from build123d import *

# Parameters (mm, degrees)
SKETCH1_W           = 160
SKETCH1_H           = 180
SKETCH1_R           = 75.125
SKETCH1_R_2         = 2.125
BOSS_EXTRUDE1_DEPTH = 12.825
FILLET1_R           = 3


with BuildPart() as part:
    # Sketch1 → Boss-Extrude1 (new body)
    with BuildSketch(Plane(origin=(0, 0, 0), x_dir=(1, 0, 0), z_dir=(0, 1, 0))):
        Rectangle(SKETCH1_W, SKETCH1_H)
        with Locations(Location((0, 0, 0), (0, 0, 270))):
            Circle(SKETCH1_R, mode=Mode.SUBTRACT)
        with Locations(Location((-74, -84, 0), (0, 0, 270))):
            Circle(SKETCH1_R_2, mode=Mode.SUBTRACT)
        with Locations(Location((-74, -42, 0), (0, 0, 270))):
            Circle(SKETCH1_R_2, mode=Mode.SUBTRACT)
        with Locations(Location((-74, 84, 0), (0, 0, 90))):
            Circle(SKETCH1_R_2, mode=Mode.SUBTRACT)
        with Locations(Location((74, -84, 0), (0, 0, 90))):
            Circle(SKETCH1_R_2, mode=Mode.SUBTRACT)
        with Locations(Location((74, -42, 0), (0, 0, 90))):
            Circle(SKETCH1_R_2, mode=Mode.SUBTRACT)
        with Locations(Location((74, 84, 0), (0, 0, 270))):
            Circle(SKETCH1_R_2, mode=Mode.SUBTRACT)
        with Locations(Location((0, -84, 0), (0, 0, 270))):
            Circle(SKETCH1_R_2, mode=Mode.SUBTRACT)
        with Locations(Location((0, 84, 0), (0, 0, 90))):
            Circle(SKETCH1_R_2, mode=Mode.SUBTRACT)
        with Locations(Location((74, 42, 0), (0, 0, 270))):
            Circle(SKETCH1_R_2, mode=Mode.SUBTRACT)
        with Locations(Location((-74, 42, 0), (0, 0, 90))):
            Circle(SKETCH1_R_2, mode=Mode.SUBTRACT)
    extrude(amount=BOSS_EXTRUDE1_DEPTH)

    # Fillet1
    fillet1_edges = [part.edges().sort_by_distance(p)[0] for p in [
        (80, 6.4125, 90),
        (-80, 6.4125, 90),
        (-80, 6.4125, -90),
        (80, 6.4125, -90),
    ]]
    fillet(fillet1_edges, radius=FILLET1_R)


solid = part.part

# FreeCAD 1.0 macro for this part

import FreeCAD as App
import Part
import Sketcher

V = App.Vector


def edges_at(feature, points):
    """Names of the edges that pass closest to the given points."""
    edges = feature.Shape.Edges
    near = lambda p: min(range(len(edges)), key=lambda i: edges[i].distToShape(Part.Vertex(*p))[0])
    return sorted({f"Edge{near(p) + 1}" for p in points})


def add_polygon(sketch, points):
    """Adds a closed chain of lines whose ends are joined by coincident constraints."""
    first, n = sketch.GeometryCount, len(points)
    for a, b in zip(points, points[1:] + points[:1]):
        sketch.addGeometry(Part.LineSegment(App.Vector(*a, 0), App.Vector(*b, 0)), False)
    for i in range(n):
        sketch.addConstraint(Sketcher.Constraint("Coincident", first + i, 2, first + (i + 1) % n, 1))

doc = App.newDocument("Part")
body = doc.addObject("PartDesign::Body", "Body")

# Sketch on XZ plane
sketch1 = body.newObject("Sketcher::SketchObject", "Sketch")
sketch1.AttachmentSupport = (doc.getObject("XZ_Plane"), [""])
sketch1.MapMode = "FlatFace"
add_polygon(sketch1, [(-80, -90), (-80, 90), (80, 90), (80, -90)])  # lines 0-3
sketch1.addGeometry(Part.Circle(V(-74, 84, 0), V(0, 0, 1), 2.125), False)  # 4
sketch1.addGeometry(Part.Circle(V(-74, 42, 0), V(0, 0, 1), 2.125), False)  # 5
sketch1.addGeometry(Part.Circle(V(0, 84, 0), V(0, 0, 1), 2.125), False)  # 6
sketch1.addGeometry(Part.Circle(V(74, 84, 0), V(0, 0, 1), 2.125), False)  # 7
sketch1.addGeometry(Part.Circle(V(74, 42, 0), V(0, 0, 1), 2.125), False)  # 8
sketch1.addGeometry(Part.Circle(V(-74, -42, 0), V(0, 0, 1), 2.125), False)  # 9
sketch1.addGeometry(Part.Circle(V(-74, -84, 0), V(0, 0, 1), 2.125), False)  # 10
sketch1.addGeometry(Part.Circle(V(0, 0, 0), V(0, 0, 1), 75.125), False)  # 11
sketch1.addGeometry(Part.Circle(V(74, -42, 0), V(0, 0, 1), 2.125), False)  # 12
sketch1.addGeometry(Part.Circle(V(0, -84, 0), V(0, 0, 1), 2.125), False)  # 13
sketch1.addGeometry(Part.Circle(V(74, -84, 0), V(0, 0, 1), 2.125), False)  # 14
sketch1.addConstraint([
    Sketcher.Constraint("Vertical", 0),
    Sketcher.Constraint("Horizontal", 1),
    Sketcher.Constraint("Vertical", 2),
    Sketcher.Constraint("Horizontal", 3),
    Sketcher.Constraint("Coincident", 11, 3, -1, 1),
    Sketcher.Constraint("Equal", 4, 5),
    Sketcher.Constraint("Equal", 5, 6),
    Sketcher.Constraint("Equal", 6, 7),
    Sketcher.Constraint("Equal", 7, 8),
    Sketcher.Constraint("Equal", 8, 9),
    Sketcher.Constraint("Equal", 9, 10),
    Sketcher.Constraint("Equal", 10, 12),
    Sketcher.Constraint("Equal", 12, 13),
    Sketcher.Constraint("Equal", 13, 14),
    Sketcher.Constraint("Symmetric", 8, 3, 9, 3, -1, 1),
    Sketcher.Constraint("Symmetric", 7, 3, 10, 3, -1, 1),
    Sketcher.Constraint("Symmetric", 5, 3, 12, 3, -1, 1),
    Sketcher.Constraint("Symmetric", 6, 3, 13, 3, -1, 1),
    Sketcher.Constraint("Symmetric", 4, 3, 14, 3, -1, 1),
    Sketcher.Constraint("Symmetric", 0, 2, 2, 2, -1, 1),
    Sketcher.Constraint("Symmetric", 4, 3, 7, 3, -2),
    Sketcher.Constraint("Symmetric", 5, 3, 8, 3, -2),
    Sketcher.Constraint("PointOnObject", 6, 3, -2),
    Sketcher.Constraint("Horizontal", 4, 3, 6, 3),
    Sketcher.Constraint("Vertical", 4, 3, 5, 3),
    Sketcher.Constraint("Diameter", 4, 4.25),
    Sketcher.Constraint("Diameter", 11, 150.25),
    Sketcher.Constraint("DistanceX", 1, 1, 1, 2, 160.0),
    Sketcher.Constraint("DistanceY", 0, 1, 0, 2, 180.0),
    Sketcher.Constraint("DistanceX", 4, 3, -1, 1, 74.0),
    Sketcher.Constraint("DistanceY", -1, 1, 4, 3, 84.0),
    Sketcher.Constraint("DistanceY", -1, 1, 5, 3, 42.0),
])
pad1 = body.newObject("PartDesign::Pad", "Pad")
pad1.Profile = sketch1
pad1.Length = 12.825
pad1.Reversed = True
doc.recompute()

fillet = body.newObject("PartDesign::Fillet", "Fillet")
fillet.Base = (pad1, edges_at(pad1, [
    (80, 6.412, 90),
    (-80, 6.412, 90),
    (-80, 6.412, -90),
    (80, 6.412, -90),
]))
fillet.Radius = 3

doc.recompute()
